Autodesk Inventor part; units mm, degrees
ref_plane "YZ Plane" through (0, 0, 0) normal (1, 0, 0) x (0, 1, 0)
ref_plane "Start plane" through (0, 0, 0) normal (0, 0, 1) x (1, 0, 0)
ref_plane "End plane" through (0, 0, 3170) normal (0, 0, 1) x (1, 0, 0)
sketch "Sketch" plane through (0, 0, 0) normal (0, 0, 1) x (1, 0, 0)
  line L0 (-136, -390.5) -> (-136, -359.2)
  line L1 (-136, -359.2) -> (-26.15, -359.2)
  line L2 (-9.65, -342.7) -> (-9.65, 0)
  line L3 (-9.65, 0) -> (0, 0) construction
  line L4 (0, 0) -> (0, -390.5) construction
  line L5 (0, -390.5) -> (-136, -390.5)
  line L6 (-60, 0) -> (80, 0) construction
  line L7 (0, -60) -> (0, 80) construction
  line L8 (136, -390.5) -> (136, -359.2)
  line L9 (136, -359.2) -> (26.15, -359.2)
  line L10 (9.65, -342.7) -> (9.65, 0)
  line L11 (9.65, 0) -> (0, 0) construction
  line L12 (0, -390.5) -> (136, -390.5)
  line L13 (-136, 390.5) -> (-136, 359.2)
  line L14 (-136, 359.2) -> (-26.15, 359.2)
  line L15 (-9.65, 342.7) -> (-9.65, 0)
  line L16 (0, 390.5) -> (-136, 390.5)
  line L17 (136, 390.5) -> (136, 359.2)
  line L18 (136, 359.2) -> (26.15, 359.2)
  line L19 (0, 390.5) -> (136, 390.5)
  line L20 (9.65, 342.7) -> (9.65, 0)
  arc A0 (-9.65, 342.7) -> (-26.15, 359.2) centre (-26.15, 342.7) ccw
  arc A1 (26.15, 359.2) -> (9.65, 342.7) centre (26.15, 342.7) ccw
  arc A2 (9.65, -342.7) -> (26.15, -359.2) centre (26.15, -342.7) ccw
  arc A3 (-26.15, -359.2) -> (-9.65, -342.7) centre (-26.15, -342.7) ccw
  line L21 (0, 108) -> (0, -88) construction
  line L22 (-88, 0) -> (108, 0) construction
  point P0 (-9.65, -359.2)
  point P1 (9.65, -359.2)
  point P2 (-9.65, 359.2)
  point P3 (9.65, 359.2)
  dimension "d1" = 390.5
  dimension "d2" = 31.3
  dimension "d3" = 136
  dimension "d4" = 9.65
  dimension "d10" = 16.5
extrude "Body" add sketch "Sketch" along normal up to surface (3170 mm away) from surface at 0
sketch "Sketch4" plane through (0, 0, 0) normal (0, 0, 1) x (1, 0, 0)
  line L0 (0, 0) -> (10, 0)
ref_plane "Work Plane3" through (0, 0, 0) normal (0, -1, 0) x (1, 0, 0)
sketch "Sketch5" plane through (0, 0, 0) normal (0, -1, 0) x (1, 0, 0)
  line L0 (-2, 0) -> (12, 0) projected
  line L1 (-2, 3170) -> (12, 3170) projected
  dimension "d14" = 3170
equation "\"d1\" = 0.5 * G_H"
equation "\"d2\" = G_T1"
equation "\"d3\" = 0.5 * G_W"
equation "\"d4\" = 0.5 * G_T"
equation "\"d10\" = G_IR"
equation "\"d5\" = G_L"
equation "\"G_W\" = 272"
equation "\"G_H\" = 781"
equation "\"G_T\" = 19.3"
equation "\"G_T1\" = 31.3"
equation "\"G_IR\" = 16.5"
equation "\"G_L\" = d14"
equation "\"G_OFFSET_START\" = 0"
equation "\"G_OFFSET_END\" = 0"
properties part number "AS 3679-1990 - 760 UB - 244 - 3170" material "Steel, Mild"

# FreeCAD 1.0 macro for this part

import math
import FreeCAD as App
import Part
import Sketcher

V = App.Vector
Q = App.Units.Quantity

doc = App.newDocument("Part")
body = doc.addObject("PartDesign::Body", "Body")

sketch1 = doc.addObject("Sketcher::SketchObject", "Sketch")
body.addObject(sketch1)
sketch1.AttachmentSupport = (doc.XY_Plane, [""])
sketch1.MapMode = "FlatFace"
sketch1.addGeometry([
    Part.LineSegment(V(-136, -359, 0), V(-136, -390, 0)),
    Part.LineSegment(V(-136, -390, 0), V(136, -390, 0)),
    Part.LineSegment(V(136, -390, 0), V(136, -359, 0)),
    Part.LineSegment(V(136, -359, 0), V(26, -359, 0)),
    Part.ArcOfCircle(Part.Circle(V(26, -343, 0), V(0, 0, 1), 16), math.radians(180), math.radians(270)),
    Part.LineSegment(V(10, -343, 0), V(10, 343, 0)),
    Part.ArcOfCircle(Part.Circle(V(26, 343, 0), V(0, 0, 1), 16), math.radians(90), math.radians(180)),
    Part.LineSegment(V(26, 359, 0), V(136, 359, 0)),
    Part.LineSegment(V(136, 359, 0), V(136, 390, 0)),
    Part.LineSegment(V(136, 390, 0), V(-136, 390, 0)),
    Part.LineSegment(V(-136, 390, 0), V(-136, 359, 0)),
    Part.LineSegment(V(-136, 359, 0), V(-26, 359, 0)),
    Part.ArcOfCircle(Part.Circle(V(-26, 343, 0), V(0, 0, 1), 16), math.radians(0), math.radians(90)),
    Part.LineSegment(V(-10, 343, 0), V(-10, -343, 0)),
    Part.ArcOfCircle(Part.Circle(V(-26, -343, 0), V(0, 0, 1), 16), math.radians(-90), math.radians(0)),
    Part.LineSegment(V(-26, -359, 0), V(-136, -359, 0)),
], False)
sketch1.addConstraint([
    Sketcher.Constraint("Coincident", 0, 2, 1, 1),
    Sketcher.Constraint("Coincident", 1, 2, 2, 1),
    Sketcher.Constraint("Coincident", 2, 2, 3, 1),
    Sketcher.Constraint("Tangent", 3, 2, 4, 2),
    Sketcher.Constraint("Tangent", 4, 1, 5, 1),
    Sketcher.Constraint("Tangent", 5, 2, 6, 2),
    Sketcher.Constraint("Tangent", 6, 1, 7, 1),
    Sketcher.Constraint("Coincident", 7, 2, 8, 1),
    Sketcher.Constraint("Coincident", 8, 2, 9, 1),
    Sketcher.Constraint("Coincident", 9, 2, 10, 1),
    Sketcher.Constraint("Coincident", 10, 2, 11, 1),
    Sketcher.Constraint("Tangent", 11, 2, 12, 2),
    Sketcher.Constraint("Tangent", 12, 1, 13, 1),
    Sketcher.Constraint("Tangent", 13, 2, 14, 2),
    Sketcher.Constraint("Tangent", 14, 1, 15, 1),
    Sketcher.Constraint("Coincident", 15, 2, 0, 1),
    Sketcher.Constraint("Vertical", 0),
    Sketcher.Constraint("Horizontal", 1),
    Sketcher.Constraint("Vertical", 2),
    Sketcher.Constraint("Horizontal", 3),
    Sketcher.Constraint("Vertical", 5),
    Sketcher.Constraint("Horizontal", 7),
    Sketcher.Constraint("Vertical", 8),
    Sketcher.Constraint("Horizontal", 9),
    Sketcher.Constraint("Vertical", 10),
    Sketcher.Constraint("Horizontal", 11),
    Sketcher.Constraint("Vertical", 13),
    Sketcher.Constraint("Horizontal", 15),
    Sketcher.Constraint("Equal", 4, 6),
    Sketcher.Constraint("Equal", 6, 12),
    Sketcher.Constraint("Equal", 12, 14),
    Sketcher.Constraint("Symmetric", 4, 3, 12, 3, -1, 1),
    Sketcher.Constraint("Symmetric", 0, 2, 8, 2, -1, 1),
    Sketcher.Constraint("Symmetric", 7, 2, 10, 2, -2),
    Sketcher.Constraint("Symmetric", 2, 2, 15, 2, -2),
    Sketcher.Constraint("Radius", 4, Q("16.5 mm")),
    Sketcher.Constraint("DistanceY", 0, 2, 0, 1, Q("31.3 mm")),
    Sketcher.Constraint("DistanceX", 0, 2, -1, 1, Q("136 mm")),
    Sketcher.Constraint("DistanceY", 0, 2, -1, 1, Q("390.5 mm")),
    Sketcher.Constraint("DistanceX", -1, 1, 4, 1, Q("9.65 mm")),
])
pad1 = doc.addObject("PartDesign::Pad", "Pad")
body.addObject(pad1)
pad1.Profile = sketch1
pad1.Length = 3170

doc.recompute()
